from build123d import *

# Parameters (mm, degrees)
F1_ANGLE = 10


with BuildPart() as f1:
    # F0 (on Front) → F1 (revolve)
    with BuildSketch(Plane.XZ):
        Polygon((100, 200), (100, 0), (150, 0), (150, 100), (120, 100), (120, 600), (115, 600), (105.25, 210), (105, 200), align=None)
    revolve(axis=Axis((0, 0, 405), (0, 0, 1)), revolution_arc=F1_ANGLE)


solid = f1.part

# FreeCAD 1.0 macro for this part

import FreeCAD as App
import Part
import Sketcher
Q = App.Units.Quantity

doc = App.newDocument("Part")
body = doc.addObject("PartDesign::Body", "Body")

# Sketch on XZ plane
sketch1 = body.newObject("Sketcher::SketchObject", "Sketch")
sketch1.AttachmentSupport = (doc.getObject("XZ_Plane"), [""])
sketch1.MapMode = "FlatFace"
sketch1.addGeometry(Part.LineSegment(App.Vector(100, 200, 0), App.Vector(100, 0, 0)), False)
sketch1.addGeometry(Part.LineSegment(App.Vector(100, 0, 0), App.Vector(150, 0, 0)), False)
sketch1.addGeometry(Part.LineSegment(App.Vector(150, 0, 0), App.Vector(150, 100, 0)), False)
sketch1.addGeometry(Part.LineSegment(App.Vector(150, 100, 0), App.Vector(120, 100, 0)), False)
sketch1.addGeometry(Part.LineSegment(App.Vector(120, 100, 0), App.Vector(120, 600, 0)), False)
sketch1.addGeometry(Part.LineSegment(App.Vector(120, 600, 0), App.Vector(115, 600, 0)), False)
sketch1.addGeometry(Part.LineSegment(App.Vector(115, 600, 0), App.Vector(105, 200, 0)), False)
sketch1.addGeometry(Part.LineSegment(App.Vector(105, 200, 0), App.Vector(100, 200, 0)), False)
sketch1.addConstraint(Sketcher.Constraint("Coincident", 0, 2, 1, 1))
sketch1.addConstraint(Sketcher.Constraint("Coincident", 1, 2, 2, 1))
sketch1.addConstraint(Sketcher.Constraint("Coincident", 2, 2, 3, 1))
sketch1.addConstraint(Sketcher.Constraint("Coincident", 3, 2, 4, 1))
sketch1.addConstraint(Sketcher.Constraint("Coincident", 4, 2, 5, 1))
sketch1.addConstraint(Sketcher.Constraint("Coincident", 5, 2, 6, 1))
sketch1.addConstraint(Sketcher.Constraint("Coincident", 6, 2, 7, 1))
sketch1.addConstraint(Sketcher.Constraint("Coincident", 7, 2, 0, 1))
sketch1.addConstraint(Sketcher.Constraint("Vertical", 0))
sketch1.addConstraint(Sketcher.Constraint("Horizontal", 1))
sketch1.addConstraint(Sketcher.Constraint("Vertical", 2))
sketch1.addConstraint(Sketcher.Constraint("Horizontal", 3))
sketch1.addConstraint(Sketcher.Constraint("Vertical", 4))
sketch1.addConstraint(Sketcher.Constraint("Horizontal", 5))
sketch1.addConstraint(Sketcher.Constraint("Horizontal", 7))
sketch1.addConstraint(Sketcher.Constraint("PointOnObject", 0, 2, -1))
sketch1.addConstraint(Sketcher.Constraint("Equal", 5, 7))
sketch1.addConstraint(Sketcher.Constraint("DistanceX", 1, 1, 1, 2, Q("50 mm")))
sketch1.addConstraint(Sketcher.Constraint("DistanceX", 3, 2, 3, 1, Q("30 mm")))
sketch1.addConstraint(Sketcher.Constraint("DistanceX", 5, 2, 5, 1, Q("5 mm")))
sketch1.addConstraint(Sketcher.Constraint("DistanceY", 0, 2, 0, 1, Q("200 mm")))
sketch1.addConstraint(Sketcher.Constraint("DistanceY", 2, 1, 2, 2, Q("100 mm")))
sketch1.addConstraint(Sketcher.Constraint("DistanceY", 4, 1, 4, 2, Q("500 mm")))
sketch1.addConstraint(Sketcher.Constraint("DistanceX", -1, 1, 0, 2, Q("100 mm")))
revolution = body.newObject("PartDesign::Revolution", "Revolution")
revolution.Profile = sketch1
revolution.ReferenceAxis = (sketch1, ["V_Axis"])
revolution.Angle = 10

doc.recompute()
